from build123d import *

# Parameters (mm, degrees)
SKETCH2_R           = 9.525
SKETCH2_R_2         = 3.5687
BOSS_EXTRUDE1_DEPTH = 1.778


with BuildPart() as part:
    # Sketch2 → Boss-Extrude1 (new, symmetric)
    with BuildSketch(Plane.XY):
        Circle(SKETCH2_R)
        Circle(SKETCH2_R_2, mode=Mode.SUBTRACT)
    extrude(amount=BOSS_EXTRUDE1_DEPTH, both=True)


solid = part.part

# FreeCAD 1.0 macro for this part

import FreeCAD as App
import Part
import Sketcher
from FreeCAD import Vector
Q = App.Units.Quantity

doc = App.newDocument("Part")
body = doc.addObject("PartDesign::Body", "Body")

# Sketch on XY plane
sketch1 = body.newObject("Sketcher::SketchObject", "Sketch")
sketch1.AttachmentSupport = (doc.getObject("XY_Plane"), [""])
sketch1.MapMode = "FlatFace"
sketch1.addGeometry([
    Part.Circle(Vector(0, 0, 0), Vector(0, 0, 1), 9.525),
    Part.Circle(Vector(0, 0, 0), Vector(0, 0, 1), 3.5687),
], False)
sketch1.addConstraint([
    Sketcher.Constraint("Coincident", 0, 3, -1, 1),
    Sketcher.Constraint("Coincident", 1, 3, -1, 1),
    Sketcher.Constraint("Diameter", 0, Q("0.75 in")),
    Sketcher.Constraint("Diameter", 1, Q("0.281 in")),
])
pad1 = body.newObject("PartDesign::Pad", "Pad")
pad1.Profile = sketch1
pad1.Length = Q("0.14 in")
pad1.Midplane = True

doc.recompute()
